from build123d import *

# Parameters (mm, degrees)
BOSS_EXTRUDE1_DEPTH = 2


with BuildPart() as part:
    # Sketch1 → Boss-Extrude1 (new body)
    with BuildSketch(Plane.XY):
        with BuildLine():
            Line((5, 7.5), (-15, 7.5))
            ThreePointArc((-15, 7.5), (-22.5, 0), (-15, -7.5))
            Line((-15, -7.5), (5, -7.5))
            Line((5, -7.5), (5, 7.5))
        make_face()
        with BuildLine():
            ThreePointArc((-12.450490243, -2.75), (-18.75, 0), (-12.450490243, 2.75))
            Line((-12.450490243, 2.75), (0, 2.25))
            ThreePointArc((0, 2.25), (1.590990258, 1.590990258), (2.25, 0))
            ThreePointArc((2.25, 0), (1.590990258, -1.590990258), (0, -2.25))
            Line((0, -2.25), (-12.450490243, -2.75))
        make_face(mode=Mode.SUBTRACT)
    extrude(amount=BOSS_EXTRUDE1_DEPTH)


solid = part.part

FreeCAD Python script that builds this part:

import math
import FreeCAD as App
import Part
import Sketcher

V = App.Vector

doc = App.newDocument("Part")
body = doc.addObject("PartDesign::Body", "Body")

# Sketch on XY plane
sketch1 = doc.addObject("Sketcher::SketchObject", "Sketch")
body.addObject(sketch1)
sketch1.AttachmentSupport = (doc.XY_Plane, [""])
sketch1.MapMode = "FlatFace"
sketch1.addGeometry(Part.LineSegment(V(5, 7.5, 0), V(-15, 7.5, 0)), False)
sketch1.addGeometry(Part.ArcOfCircle(Part.Circle(V(-15, 0, 0), V(0, 0, 1), 7.5), math.radians(90), math.radians(270)), False)
sketch1.addGeometry(Part.LineSegment(V(-15, -7.5, 0), V(5, -7.5, 0)), False)
sketch1.addGeometry(Part.LineSegment(V(5, -7.5, 0), V(5, 7.5, 0)), False)
sketch1.addGeometry(Part.LineSegment(V(0, -2.25, 0), V(-12.45049, -2.75, 0)), False)
sketch1.addGeometry(Part.ArcOfCircle(Part.Circle(V(-15, 0, 0), V(0, 0, 1), 3.75), math.radians(47.166572), math.radians(312.833428)), False)
sketch1.addGeometry(Part.LineSegment(V(-12.45049, 2.75, 0), V(0, 2.25, 0)), False)
sketch1.addGeometry(Part.ArcOfCircle(Part.Circle(V(0, 0, 0), V(0, 0, 1), 2.25), math.radians(0), math.radians(90)), False)
sketch1.addGeometry(Part.ArcOfCircle(Part.Circle(V(0, 0, 0), V(0, 0, 1), 2.25), math.radians(-90), math.radians(0)), False)
sketch1.addConstraint(Sketcher.Constraint("Tangent", 0, 2, 1, 1))
sketch1.addConstraint(Sketcher.Constraint("Tangent", 1, 2, 2, 1))
sketch1.addConstraint(Sketcher.Constraint("Coincident", 2, 2, 3, 1))
sketch1.addConstraint(Sketcher.Constraint("Coincident", 3, 2, 0, 1))
sketch1.addConstraint(Sketcher.Constraint("Coincident", 4, 2, 5, 2))
sketch1.addConstraint(Sketcher.Constraint("Coincident", 5, 1, 6, 1))
sketch1.addConstraint(Sketcher.Constraint("Coincident", 6, 2, 7, 2))
sketch1.addConstraint(Sketcher.Constraint("Tangent", 7, 1, 8, 2))
sketch1.addConstraint(Sketcher.Constraint("Coincident", 8, 1, 4, 1))
sketch1.addConstraint(Sketcher.Constraint("Horizontal", 0))
sketch1.addConstraint(Sketcher.Constraint("Horizontal", 2))
sketch1.addConstraint(Sketcher.Constraint("Vertical", 3))
sketch1.addConstraint(Sketcher.Constraint("Coincident", 7, 3, -1, 1))
sketch1.addConstraint(Sketcher.Constraint("Coincident", 5, 3, 1, 3))
sketch1.addConstraint(Sketcher.Constraint("Equal", 7, 8))
sketch1.addConstraint(Sketcher.Constraint("Symmetric", 4, 2, 5, 1, -1))
sketch1.addConstraint(Sketcher.Constraint("PointOnObject", 6, 2, -2))
sketch1.addConstraint(Sketcher.Constraint("PointOnObject", 7, 1, -1))
sketch1.addConstraint(Sketcher.Constraint("PointOnObject", 8, 1, -2))
sketch1.addConstraint(Sketcher.Constraint("Radius", 1, 7.5))
sketch1.addConstraint(Sketcher.Constraint("DistanceX", 0, 2, 0, 1, 20.0))
sketch1.addConstraint(Sketcher.Constraint("Radius", 5, 3.75))
sketch1.addConstraint(Sketcher.Constraint("Radius", 7, 2.25))
sketch1.addConstraint(Sketcher.Constraint("DistanceX", 1, 3, -1, 1, 15.0))
sketch1.addConstraint(Sketcher.Constraint("DistanceY", 4, 2, 5, 1, 5.5))
pad1 = doc.addObject("PartDesign::Pad", "Pad")
body.addObject(pad1)
pad1.Profile = sketch1
pad1.Length = 2

doc.recompute()
